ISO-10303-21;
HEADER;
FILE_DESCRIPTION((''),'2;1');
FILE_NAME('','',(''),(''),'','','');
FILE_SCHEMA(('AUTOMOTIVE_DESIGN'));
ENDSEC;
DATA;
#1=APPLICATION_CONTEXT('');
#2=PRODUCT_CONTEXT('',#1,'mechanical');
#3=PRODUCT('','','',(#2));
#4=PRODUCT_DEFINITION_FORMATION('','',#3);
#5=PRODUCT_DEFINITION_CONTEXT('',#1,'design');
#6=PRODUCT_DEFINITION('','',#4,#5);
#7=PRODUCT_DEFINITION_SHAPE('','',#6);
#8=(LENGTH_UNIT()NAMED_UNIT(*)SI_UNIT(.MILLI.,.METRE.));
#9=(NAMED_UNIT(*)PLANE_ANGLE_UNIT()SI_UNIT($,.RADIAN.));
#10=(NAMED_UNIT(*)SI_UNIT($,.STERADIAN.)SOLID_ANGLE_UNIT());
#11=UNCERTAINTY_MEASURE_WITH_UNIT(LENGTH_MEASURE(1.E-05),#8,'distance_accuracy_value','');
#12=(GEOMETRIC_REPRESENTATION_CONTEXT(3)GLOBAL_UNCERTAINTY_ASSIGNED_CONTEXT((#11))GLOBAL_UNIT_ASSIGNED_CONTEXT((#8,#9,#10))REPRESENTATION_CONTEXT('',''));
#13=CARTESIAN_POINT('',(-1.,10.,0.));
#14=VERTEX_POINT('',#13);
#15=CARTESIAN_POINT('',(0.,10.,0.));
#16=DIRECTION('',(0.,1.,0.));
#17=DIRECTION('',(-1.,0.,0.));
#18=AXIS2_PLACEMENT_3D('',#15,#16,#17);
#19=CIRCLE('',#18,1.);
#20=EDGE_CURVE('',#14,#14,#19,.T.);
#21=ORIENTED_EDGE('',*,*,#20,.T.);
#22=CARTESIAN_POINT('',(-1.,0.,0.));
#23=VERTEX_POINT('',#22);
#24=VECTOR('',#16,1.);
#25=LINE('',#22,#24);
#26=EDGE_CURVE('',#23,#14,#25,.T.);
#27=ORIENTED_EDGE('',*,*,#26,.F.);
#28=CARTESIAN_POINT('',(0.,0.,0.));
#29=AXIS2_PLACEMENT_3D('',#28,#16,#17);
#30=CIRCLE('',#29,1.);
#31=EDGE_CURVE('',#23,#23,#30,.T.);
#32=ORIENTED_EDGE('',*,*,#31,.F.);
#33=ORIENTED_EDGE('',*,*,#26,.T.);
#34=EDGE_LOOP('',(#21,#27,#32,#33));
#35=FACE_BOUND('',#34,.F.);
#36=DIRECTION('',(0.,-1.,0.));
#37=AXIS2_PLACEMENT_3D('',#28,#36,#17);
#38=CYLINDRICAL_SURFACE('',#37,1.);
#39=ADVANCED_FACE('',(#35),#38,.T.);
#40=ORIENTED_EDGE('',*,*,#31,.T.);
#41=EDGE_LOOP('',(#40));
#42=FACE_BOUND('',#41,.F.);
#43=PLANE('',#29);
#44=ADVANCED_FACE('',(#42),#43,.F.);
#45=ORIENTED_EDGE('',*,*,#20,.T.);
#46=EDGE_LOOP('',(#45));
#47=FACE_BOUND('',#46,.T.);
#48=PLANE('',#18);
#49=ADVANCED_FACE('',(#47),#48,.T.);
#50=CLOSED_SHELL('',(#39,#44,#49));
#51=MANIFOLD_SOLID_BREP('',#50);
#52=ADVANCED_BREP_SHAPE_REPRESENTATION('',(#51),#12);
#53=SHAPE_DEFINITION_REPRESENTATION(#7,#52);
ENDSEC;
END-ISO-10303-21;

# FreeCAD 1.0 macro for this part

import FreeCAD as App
import Part
import Sketcher

V = App.Vector

doc = App.newDocument("Part")
body = doc.addObject("PartDesign::Body", "Body")

sketch1 = body.newObject("Sketcher::SketchObject", "Sketch")
sketch1.AttachmentSupport = (doc.getObject("XZ_Plane"), [""])
sketch1.MapMode = "FlatFace"
sketch1.addGeometry(Part.Circle(V(0, 0, 0), V(0, 0, 1), 1), False)
sketch1.addConstraint([
    Sketcher.Constraint("Coincident", 0, 3, -1, 1),
    Sketcher.Constraint("Diameter", 0, 2.0),
])
pad1 = body.newObject("PartDesign::Pad", "Pad")
pad1.Profile = sketch1
pad1.Length = 10
pad1.Reversed = True

doc.recompute()
